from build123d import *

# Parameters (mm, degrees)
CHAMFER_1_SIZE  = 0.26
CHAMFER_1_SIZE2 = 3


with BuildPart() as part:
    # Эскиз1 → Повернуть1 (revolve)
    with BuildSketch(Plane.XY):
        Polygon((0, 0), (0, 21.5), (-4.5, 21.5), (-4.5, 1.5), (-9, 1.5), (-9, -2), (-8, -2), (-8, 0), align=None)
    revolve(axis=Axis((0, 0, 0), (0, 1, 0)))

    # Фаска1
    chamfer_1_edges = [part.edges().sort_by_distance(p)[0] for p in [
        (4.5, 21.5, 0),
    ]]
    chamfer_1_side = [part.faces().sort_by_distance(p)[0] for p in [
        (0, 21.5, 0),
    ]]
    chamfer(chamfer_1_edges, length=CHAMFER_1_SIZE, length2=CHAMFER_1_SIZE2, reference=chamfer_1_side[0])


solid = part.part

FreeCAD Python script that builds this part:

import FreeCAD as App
import Part
import Sketcher
from FreeCAD import Vector


def edges_at(feature, points):
    """Names of the edges that pass closest to the given points."""
    edges = feature.Shape.Edges
    near = lambda p: min(range(len(edges)), key=lambda i: edges[i].distToShape(Part.Vertex(*p))[0])
    return sorted({f"Edge{near(p) + 1}" for p in points})


def add_polygon(sketch, points):
    """Adds a closed chain of lines whose ends are joined by coincident constraints."""
    first, n = sketch.GeometryCount, len(points)
    for a, b in zip(points, points[1:] + points[:1]):
        sketch.addGeometry(Part.LineSegment(App.Vector(*a, 0), App.Vector(*b, 0)), False)
    for i in range(n):
        sketch.addConstraint(Sketcher.Constraint("Coincident", first + i, 2, first + (i + 1) % n, 1))

doc = App.newDocument("Part")
body = doc.addObject("PartDesign::Body", "Body")

# Sketch on XY plane
sketch1 = body.newObject("Sketcher::SketchObject", "Sketch")
sketch1.AttachmentSupport = (doc.getObject("XY_Plane"), [""])
sketch1.MapMode = "FlatFace"
add_polygon(sketch1, [(0, 0), (0, 21.5), (-4.5, 21.5), (-4.5, 1.5), (-9, 1.5), (-9, -2), (-8, -2), (-8, 0)])  # lines 0-7
sketch1.addConstraint(Sketcher.Constraint("Vertical", 0))
sketch1.addConstraint(Sketcher.Constraint("Horizontal", 1))
sketch1.addConstraint(Sketcher.Constraint("Vertical", 2))
sketch1.addConstraint(Sketcher.Constraint("Horizontal", 3))
sketch1.addConstraint(Sketcher.Constraint("Vertical", 4))
sketch1.addConstraint(Sketcher.Constraint("Horizontal", 5))
sketch1.addConstraint(Sketcher.Constraint("Vertical", 6))
sketch1.addConstraint(Sketcher.Constraint("Horizontal", 7))
sketch1.addConstraint(Sketcher.Constraint("Coincident", 7, 2, -1, 1))
sketch1.addConstraint(Sketcher.Constraint("Equal", 1, 3))
sketch1.addConstraint(Sketcher.Constraint("DistanceX", 5, 1, 5, 2, 1.0))
sketch1.addConstraint(Sketcher.Constraint("DistanceX", 7, 1, 7, 2, 8.0))
sketch1.addConstraint(Sketcher.Constraint("DistanceY", 2, 2, 2, 1, 20.0))
sketch1.addConstraint(Sketcher.Constraint("DistanceY", 6, 1, 6, 2, 2.0))
sketch1.addConstraint(Sketcher.Constraint("DistanceY", 0, 1, 0, 2, 21.5))
revolution = body.newObject("PartDesign::Revolution", "Revolution")
revolution.Profile = sketch1
revolution.ReferenceAxis = (sketch1, ["V_Axis"])
revolution.Angle = 360
doc.recompute()

chamfer = body.newObject("PartDesign::Chamfer", "Chamfer")
chamfer.Base = (revolution, edges_at(revolution, [(4.5, 21.5, 0)]))
chamfer.ChamferType = "Two distances"
chamfer.Size = 0.26
chamfer.Size2 = 3

doc.recompute()
